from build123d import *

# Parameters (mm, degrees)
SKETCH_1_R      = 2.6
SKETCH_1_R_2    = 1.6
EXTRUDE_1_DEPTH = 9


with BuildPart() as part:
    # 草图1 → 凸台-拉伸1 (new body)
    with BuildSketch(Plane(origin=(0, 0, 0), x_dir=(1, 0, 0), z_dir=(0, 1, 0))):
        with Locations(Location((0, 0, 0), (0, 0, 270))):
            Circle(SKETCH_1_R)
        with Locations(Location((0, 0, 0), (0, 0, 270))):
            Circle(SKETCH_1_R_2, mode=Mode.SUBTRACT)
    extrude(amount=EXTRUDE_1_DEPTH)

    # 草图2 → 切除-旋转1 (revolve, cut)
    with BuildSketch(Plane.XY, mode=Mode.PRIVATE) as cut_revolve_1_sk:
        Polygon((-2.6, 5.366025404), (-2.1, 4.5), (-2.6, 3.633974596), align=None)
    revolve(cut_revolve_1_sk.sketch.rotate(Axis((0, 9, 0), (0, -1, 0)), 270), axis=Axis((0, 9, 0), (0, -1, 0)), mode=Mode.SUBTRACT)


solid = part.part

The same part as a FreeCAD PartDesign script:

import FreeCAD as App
import Part
import Sketcher

V = App.Vector
Q = App.Units.Quantity

doc = App.newDocument("Part")
body = doc.addObject("PartDesign::Body", "Body")

# Sketch on XZ plane
sketch1 = body.newObject("Sketcher::SketchObject", "Sketch")
sketch1.AttachmentSupport = (doc.getObject("XZ_Plane"), [""])
sketch1.MapMode = "FlatFace"
sketch1.addGeometry(Part.Circle(V(0, 0, 0), V(0, 0, 1), 2.6), False)
sketch1.addGeometry(Part.Circle(V(0, 0, 0), V(0, 0, 1), 1.6), False)
sketch1.addConstraint(Sketcher.Constraint("Coincident", 0, 3, -1, 1))
sketch1.addConstraint(Sketcher.Constraint("Coincident", 1, 3, -1, 1))
sketch1.addConstraint(Sketcher.Constraint("Diameter", 0, 5.2))
sketch1.addConstraint(Sketcher.Constraint("Diameter", 1, 3.2))
pad1 = body.newObject("PartDesign::Pad", "Pad")
pad1.Profile = sketch1
pad1.Length = 9
pad1.Reversed = True

# Sketch on XY plane
sketch2 = body.newObject("Sketcher::SketchObject", "Sketch001")
sketch2.AttachmentSupport = (doc.getObject("XY_Plane"), [""])
sketch2.MapMode = "FlatFace"
sketch2.addGeometry(Part.LineSegment(V(-2.1, 4.5, 0), V(-2.6, 5.366025, 0)), False)
sketch2.addGeometry(Part.LineSegment(V(-2.6, 5.366025, 0), V(-2.6, 3.633975, 0)), False)
sketch2.addGeometry(Part.LineSegment(V(-2.6, 3.633975, 0), V(-2.1, 4.5, 0)), False)
sketch2.addConstraint(Sketcher.Constraint("Coincident", 0, 2, 1, 1))
sketch2.addConstraint(Sketcher.Constraint("Coincident", 1, 2, 2, 1))
sketch2.addConstraint(Sketcher.Constraint("Coincident", 2, 2, 0, 1))
sketch2.addConstraint(Sketcher.Constraint("Vertical", 1))
sketch2.addConstraint(Sketcher.Constraint("Equal", 0, 2))
sketch2.addConstraint(Sketcher.Constraint("Angle", 0, Q("120 deg")))
sketch2.addConstraint(Sketcher.Constraint("Distance", 0, 1.0))
sketch2.addConstraint(Sketcher.Constraint("DistanceX", 0, 2, -1, 1, 2.6))
sketch2.addConstraint(Sketcher.Constraint("DistanceY", -1, 1, 2, 2, 4.5))
groove = body.newObject("PartDesign::Groove", "Groove")
groove.Profile = sketch2
groove.ReferenceAxis = (sketch2, ["V_Axis"])
groove.Angle = 360

doc.recompute()
